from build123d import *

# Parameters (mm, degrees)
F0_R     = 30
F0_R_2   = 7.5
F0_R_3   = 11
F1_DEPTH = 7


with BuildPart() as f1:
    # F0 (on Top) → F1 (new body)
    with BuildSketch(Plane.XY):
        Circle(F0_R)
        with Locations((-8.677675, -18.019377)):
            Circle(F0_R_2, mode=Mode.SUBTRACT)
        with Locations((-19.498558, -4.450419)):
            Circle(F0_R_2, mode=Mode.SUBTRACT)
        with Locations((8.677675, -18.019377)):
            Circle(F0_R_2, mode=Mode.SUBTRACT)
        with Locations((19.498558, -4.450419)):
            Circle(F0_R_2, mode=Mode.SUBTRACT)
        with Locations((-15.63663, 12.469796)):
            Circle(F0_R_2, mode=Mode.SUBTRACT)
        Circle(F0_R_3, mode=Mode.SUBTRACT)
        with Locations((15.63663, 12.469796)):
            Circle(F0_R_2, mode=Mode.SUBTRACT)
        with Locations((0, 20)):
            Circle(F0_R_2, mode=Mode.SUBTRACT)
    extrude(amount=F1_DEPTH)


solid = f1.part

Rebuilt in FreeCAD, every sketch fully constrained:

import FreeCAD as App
import Part
import Sketcher
Q = App.Units.Quantity

doc = App.newDocument("Part")
body = doc.addObject("PartDesign::Body", "Body")

sketch1 = body.newObject("Sketcher::SketchObject", "Sketch")
sketch1.AttachmentSupport = (doc.getObject("XY_Plane"), [""])
sketch1.MapMode = "FlatFace"
sketch1.addGeometry(Part.Circle(App.Vector(0, 0, 0), App.Vector(0, 0, 1), 30), False)
sketch1.addGeometry(Part.Circle(App.Vector(-9, -18, 0), App.Vector(0, 0, 1), 8), False)
sketch1.addGeometry(Part.Circle(App.Vector(-19, -4, 0), App.Vector(0, 0, 1), 8), False)
sketch1.addGeometry(Part.Circle(App.Vector(9, -18, 0), App.Vector(0, 0, 1), 8), False)
sketch1.addGeometry(Part.Circle(App.Vector(0, 0, 0), App.Vector(0, 0, 1), 11), False)
sketch1.addGeometry(Part.Circle(App.Vector(19, -4, 0), App.Vector(0, 0, 1), 8), False)
sketch1.addGeometry(Part.Circle(App.Vector(-16, 12, 0), App.Vector(0, 0, 1), 8), False)
sketch1.addGeometry(Part.Circle(App.Vector(16, 12, 0), App.Vector(0, 0, 1), 8), False)
sketch1.addGeometry(Part.Circle(App.Vector(0, 20, 0), App.Vector(0, 0, 1), 8), False)
sketch1.addConstraint(Sketcher.Constraint("Coincident", 0, 3, -1, 1))
sketch1.addConstraint(Sketcher.Constraint("Coincident", 4, 3, -1, 1))
sketch1.addConstraint(Sketcher.Constraint("Equal", 1, 2))
sketch1.addConstraint(Sketcher.Constraint("Equal", 2, 3))
sketch1.addConstraint(Sketcher.Constraint("Equal", 3, 5))
sketch1.addConstraint(Sketcher.Constraint("Equal", 5, 6))
sketch1.addConstraint(Sketcher.Constraint("Equal", 6, 7))
sketch1.addConstraint(Sketcher.Constraint("Equal", 7, 8))
sketch1.addConstraint(Sketcher.Constraint("Symmetric", 1, 3, 3, 3, -2))
sketch1.addConstraint(Sketcher.Constraint("Symmetric", 2, 3, 5, 3, -2))
sketch1.addConstraint(Sketcher.Constraint("Symmetric", 6, 3, 7, 3, -2))
sketch1.addConstraint(Sketcher.Constraint("PointOnObject", 8, 3, -2))
sketch1.addConstraint(Sketcher.Constraint("Diameter", 0, Q("60 mm")))
sketch1.addConstraint(Sketcher.Constraint("Diameter", 1, Q("15 mm")))
sketch1.addConstraint(Sketcher.Constraint("Diameter", 4, Q("22 mm")))
sketch1.addConstraint(Sketcher.Constraint("DistanceY", -1, 1, 8, 3, Q("20 mm")))
sketch1.addConstraint(Sketcher.Constraint("DistanceY", 2, 3, -1, 1, Q("4.450419 mm")))
sketch1.addConstraint(Sketcher.Constraint("DistanceX", 6, 3, -1, 1, Q("15.63663 mm")))
sketch1.addConstraint(Sketcher.Constraint("DistanceX", 1, 3, 3, 3, Q("17.35535 mm")))
sketch1.addConstraint(Sketcher.Constraint("DistanceY", 1, 3, -1, 1, Q("18.019377 mm")))
sketch1.addConstraint(Sketcher.Constraint("DistanceX", 2, 3, -1, 1, Q("19.498558 mm")))
sketch1.addConstraint(Sketcher.Constraint("DistanceY", -1, 1, 6, 3, Q("12.469796 mm")))
pad1 = body.newObject("PartDesign::Pad", "Pad")
pad1.Profile = sketch1
pad1.Length = 7

doc.recompute()
